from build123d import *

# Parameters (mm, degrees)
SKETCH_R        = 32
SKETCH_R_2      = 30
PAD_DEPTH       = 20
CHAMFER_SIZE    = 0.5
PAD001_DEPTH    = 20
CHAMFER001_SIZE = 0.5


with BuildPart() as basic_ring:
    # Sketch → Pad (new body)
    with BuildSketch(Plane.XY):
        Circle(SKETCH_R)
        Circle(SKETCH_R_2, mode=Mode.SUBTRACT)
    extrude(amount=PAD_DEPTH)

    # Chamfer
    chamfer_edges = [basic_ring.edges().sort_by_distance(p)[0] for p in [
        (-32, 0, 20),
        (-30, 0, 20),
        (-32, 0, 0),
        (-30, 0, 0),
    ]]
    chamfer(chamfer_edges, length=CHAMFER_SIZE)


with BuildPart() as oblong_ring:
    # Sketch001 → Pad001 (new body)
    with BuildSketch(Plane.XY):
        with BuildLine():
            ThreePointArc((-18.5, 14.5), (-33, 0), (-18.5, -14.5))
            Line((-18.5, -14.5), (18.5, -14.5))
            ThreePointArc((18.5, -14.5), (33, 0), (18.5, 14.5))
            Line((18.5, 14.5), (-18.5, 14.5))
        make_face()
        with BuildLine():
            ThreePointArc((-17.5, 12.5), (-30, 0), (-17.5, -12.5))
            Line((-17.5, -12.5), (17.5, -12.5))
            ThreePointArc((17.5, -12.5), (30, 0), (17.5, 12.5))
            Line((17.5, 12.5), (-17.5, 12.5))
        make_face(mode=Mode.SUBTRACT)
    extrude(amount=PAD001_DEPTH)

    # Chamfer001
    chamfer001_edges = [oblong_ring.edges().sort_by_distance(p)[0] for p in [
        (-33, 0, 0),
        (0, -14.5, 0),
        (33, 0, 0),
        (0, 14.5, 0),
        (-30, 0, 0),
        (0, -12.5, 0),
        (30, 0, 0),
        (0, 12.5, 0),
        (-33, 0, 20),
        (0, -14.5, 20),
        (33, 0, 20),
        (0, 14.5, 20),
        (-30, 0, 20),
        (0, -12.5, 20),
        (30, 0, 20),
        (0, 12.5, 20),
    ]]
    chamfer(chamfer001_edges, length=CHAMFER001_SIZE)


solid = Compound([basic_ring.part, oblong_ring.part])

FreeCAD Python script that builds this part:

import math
import FreeCAD as App
import Part
import Sketcher
from FreeCAD import Vector
Q = App.Units.Quantity


def edges_at(feature, points):
    """Names of the edges that pass closest to the given points."""
    edges = feature.Shape.Edges
    near = lambda p: min(range(len(edges)), key=lambda i: edges[i].distToShape(Part.Vertex(*p))[0])
    return sorted({f"Edge{near(p) + 1}" for p in points})

doc = App.newDocument("Part")
body = doc.addObject("PartDesign::Body", "Body")

# Sketch on XY plane
sketch1 = body.newObject("Sketcher::SketchObject", "Sketch")
sketch1.AttachmentSupport = (doc.getObject("XY_Plane"), [""])
sketch1.MapMode = "FlatFace"
sketch1.addGeometry([
    Part.Circle(Vector(0, 0, 0), Vector(0, 0, 1), 32),
    Part.Circle(Vector(0, 0, 0), Vector(0, 0, 1), 30),
], False)
sketch1.addConstraint([
    Sketcher.Constraint("Coincident", 0, 3, -1, 1),
    Sketcher.Constraint("Coincident", 1, 3, -1, 1),
    Sketcher.Constraint("Diameter", 0, Q("64 mm")),
    Sketcher.Constraint("Diameter", 1, Q("60 mm")),
])
pad1 = body.newObject("PartDesign::Pad", "Pad")
pad1.Profile = sketch1
pad1.Length = 20
doc.recompute()

chamfer = body.newObject("PartDesign::Chamfer", "Chamfer")
chamfer.Base = (pad1, edges_at(pad1, [
    (-32, 0, 20),
    (-30, 0, 20),
    (-32, 0, 0),
    (-30, 0, 0),
]))
chamfer.Size = 0.5
body2 = doc.addObject("PartDesign::Body", "Body001")

# Sketch on XY plane
sketch2 = body2.newObject("Sketcher::SketchObject", "Sketch001")
sketch2.AttachmentSupport = (doc.getObject("XY_Plane001"), [""])
sketch2.MapMode = "FlatFace"
sketch2.addGeometry([
    Part.ArcOfCircle(Part.Circle(Vector(-18, 0, 0), Vector(0, 0, 1), 14), math.radians(90), math.radians(270)),  # 0
    Part.LineSegment(Vector(-18, -14, 0), Vector(18, -14, 0)),  # 1
    Part.ArcOfCircle(Part.Circle(Vector(18, 0, 0), Vector(0, 0, 1), 14), math.radians(-90), math.radians(90)),  # 2
    Part.LineSegment(Vector(18, 14, 0), Vector(-18, 14, 0)),  # 3
    Part.ArcOfCircle(Part.Circle(Vector(-18, 0, 0), Vector(0, 0, 1), 12), math.radians(90), math.radians(270)),  # 4
    Part.LineSegment(Vector(-18, 12, 0), Vector(18, 12, 0)),  # 5
    Part.ArcOfCircle(Part.Circle(Vector(18, 0, 0), Vector(0, 0, 1), 12), math.radians(-90), math.radians(90)),  # 6
    Part.LineSegment(Vector(18, -12, 0), Vector(-18, -12, 0)),  # 7
], False)
sketch2.addConstraint([
    Sketcher.Constraint("Tangent", 0, 2, 1, 1),
    Sketcher.Constraint("Tangent", 1, 2, 2, 1),
    Sketcher.Constraint("Tangent", 2, 2, 3, 1),
    Sketcher.Constraint("Tangent", 3, 2, 0, 1),
    Sketcher.Constraint("Tangent", 4, 1, 5, 1),
    Sketcher.Constraint("Tangent", 5, 2, 6, 2),
    Sketcher.Constraint("Tangent", 6, 1, 7, 1),
    Sketcher.Constraint("Tangent", 7, 2, 4, 2),
    Sketcher.Constraint("Horizontal", 1),
    Sketcher.Constraint("Horizontal", 3),
    Sketcher.Constraint("Horizontal", 5),
    Sketcher.Constraint("Horizontal", 7),
    Sketcher.Constraint("Symmetric", 0, 3, 2, 3, -1, 1),
    Sketcher.Constraint("Symmetric", 4, 3, 6, 3, -1, 1),
    Sketcher.Constraint("Radius", 0, Q("14.5 mm")),
    Sketcher.Constraint("Radius", 4, Q("12.5 mm")),
    Sketcher.Constraint("DistanceX", 1, 1, 1, 2, Q("37 mm")),
    Sketcher.Constraint("DistanceX", 5, 1, 5, 2, Q("35 mm")),
])
pad2 = body2.newObject("PartDesign::Pad", "Pad001")
pad2.Profile = sketch2
pad2.Length = 20
doc.recompute()

chamfer2 = body2.newObject("PartDesign::Chamfer", "Chamfer001")
chamfer2.Base = (pad2, edges_at(pad2, [
    (-33, 0, 0),
    (0, -14.5, 0),
    (33, 0, 0),
    (0, 14.5, 0),
    (-30, 0, 0),
    (0, -12.5, 0),
    (30, 0, 0),
    (0, 12.5, 0),
    (-33, 0, 20),
    (0, -14.5, 20),
    (33, 0, 20),
    (0, 14.5, 20),
    (-30, 0, 20),
    (0, -12.5, 20),
    (30, 0, 20),
    (0, 12.5, 20),
]))
chamfer2.Size = 0.5

doc.recompute()
